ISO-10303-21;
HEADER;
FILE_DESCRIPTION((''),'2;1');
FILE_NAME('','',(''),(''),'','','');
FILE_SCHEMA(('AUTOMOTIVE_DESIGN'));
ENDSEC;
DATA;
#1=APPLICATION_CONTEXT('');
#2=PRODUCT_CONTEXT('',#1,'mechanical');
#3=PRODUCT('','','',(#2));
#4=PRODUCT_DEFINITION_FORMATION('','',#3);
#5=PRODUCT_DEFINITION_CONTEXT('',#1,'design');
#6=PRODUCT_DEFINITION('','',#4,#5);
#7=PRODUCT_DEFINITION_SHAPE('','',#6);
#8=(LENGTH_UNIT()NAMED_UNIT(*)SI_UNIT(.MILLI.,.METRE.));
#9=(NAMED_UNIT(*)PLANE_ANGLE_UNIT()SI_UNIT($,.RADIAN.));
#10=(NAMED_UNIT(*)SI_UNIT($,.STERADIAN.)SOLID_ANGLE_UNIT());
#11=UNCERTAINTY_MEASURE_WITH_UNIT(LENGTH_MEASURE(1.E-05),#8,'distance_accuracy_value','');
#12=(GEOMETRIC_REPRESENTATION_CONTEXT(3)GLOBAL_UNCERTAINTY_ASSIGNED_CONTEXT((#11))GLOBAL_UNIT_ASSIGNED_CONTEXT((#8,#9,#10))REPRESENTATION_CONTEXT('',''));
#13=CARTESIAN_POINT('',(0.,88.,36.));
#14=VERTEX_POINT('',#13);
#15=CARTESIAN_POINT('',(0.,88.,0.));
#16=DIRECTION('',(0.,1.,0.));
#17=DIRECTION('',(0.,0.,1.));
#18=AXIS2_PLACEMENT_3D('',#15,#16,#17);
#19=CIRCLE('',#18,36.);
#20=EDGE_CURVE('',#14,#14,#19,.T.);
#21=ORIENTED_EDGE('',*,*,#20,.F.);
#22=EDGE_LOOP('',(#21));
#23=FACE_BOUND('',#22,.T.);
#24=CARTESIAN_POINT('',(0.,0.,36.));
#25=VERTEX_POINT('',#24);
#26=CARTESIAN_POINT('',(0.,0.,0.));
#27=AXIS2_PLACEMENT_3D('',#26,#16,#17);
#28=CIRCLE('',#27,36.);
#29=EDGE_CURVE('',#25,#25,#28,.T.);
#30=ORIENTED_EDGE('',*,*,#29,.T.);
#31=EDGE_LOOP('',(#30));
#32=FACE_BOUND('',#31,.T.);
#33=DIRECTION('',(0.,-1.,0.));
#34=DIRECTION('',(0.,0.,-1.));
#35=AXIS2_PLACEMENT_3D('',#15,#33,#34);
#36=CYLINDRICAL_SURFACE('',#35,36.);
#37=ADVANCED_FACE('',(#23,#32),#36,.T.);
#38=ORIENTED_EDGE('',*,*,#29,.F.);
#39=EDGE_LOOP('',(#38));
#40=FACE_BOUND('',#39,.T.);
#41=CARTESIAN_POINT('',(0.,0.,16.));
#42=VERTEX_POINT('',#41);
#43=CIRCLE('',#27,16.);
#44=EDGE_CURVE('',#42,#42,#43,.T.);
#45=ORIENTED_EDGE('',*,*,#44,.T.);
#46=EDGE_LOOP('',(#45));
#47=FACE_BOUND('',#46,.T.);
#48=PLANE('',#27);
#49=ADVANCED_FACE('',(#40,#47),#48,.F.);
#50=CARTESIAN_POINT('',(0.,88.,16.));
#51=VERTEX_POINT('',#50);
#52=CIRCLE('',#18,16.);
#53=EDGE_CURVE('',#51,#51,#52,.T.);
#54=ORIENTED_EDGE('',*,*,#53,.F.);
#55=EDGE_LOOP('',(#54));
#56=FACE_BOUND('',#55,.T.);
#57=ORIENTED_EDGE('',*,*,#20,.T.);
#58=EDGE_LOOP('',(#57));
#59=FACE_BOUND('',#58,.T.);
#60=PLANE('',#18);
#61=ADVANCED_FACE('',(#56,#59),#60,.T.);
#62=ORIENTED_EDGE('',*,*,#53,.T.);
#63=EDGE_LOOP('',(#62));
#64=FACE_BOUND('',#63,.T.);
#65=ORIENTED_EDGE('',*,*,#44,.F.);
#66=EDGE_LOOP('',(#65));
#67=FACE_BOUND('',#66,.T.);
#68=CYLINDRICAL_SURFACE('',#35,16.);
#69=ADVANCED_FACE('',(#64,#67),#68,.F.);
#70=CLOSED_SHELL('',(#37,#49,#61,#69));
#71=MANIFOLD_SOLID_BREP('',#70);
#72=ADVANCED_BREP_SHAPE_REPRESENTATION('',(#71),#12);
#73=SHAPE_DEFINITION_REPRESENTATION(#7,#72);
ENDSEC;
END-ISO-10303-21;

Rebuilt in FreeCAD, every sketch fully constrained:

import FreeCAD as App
import Part
import Sketcher

V = App.Vector
Q = App.Units.Quantity

doc = App.newDocument("Part")
params = doc.addObject("Spreadsheet::Sheet", "Params")
for row, (alias, value) in enumerate([
    ("sketch1_diameter", "72 mm"),
    ("sketch1_diameter2", "32 mm"),
    ("pad1_length", "88 mm"),
], start=1):
    params.set(f"A{row}", alias)
    params.set(f"B{row}", "=" + value)
    params.setAlias(f"B{row}", alias)

body = doc.addObject("PartDesign::Body", "Body")

# Sketch on XZ plane
sketch1 = body.newObject("Sketcher::SketchObject", "Sketch")
sketch1.AttachmentSupport = (doc.getObject("XZ_Plane"), [""])
sketch1.MapMode = "FlatFace"
sketch1.addGeometry([
    Part.Circle(V(0, 0, 0), V(0, 0, 1), 36),
    Part.Circle(V(0, 0, 0), V(0, 0, 1), 16),
], False)
sketch1.addConstraint([
    Sketcher.Constraint("Coincident", 0, 3, -1, 1),
    Sketcher.Constraint("Coincident", 1, 3, -1, 1),
    Sketcher.Constraint("Diameter", 0, Q("72 mm")),
    Sketcher.Constraint("Diameter", 1, Q("32 mm")),
])
sketch1.setExpression("Constraints[2]", "Params.sketch1_diameter")
sketch1.setExpression("Constraints[3]", "Params.sketch1_diameter2")
pad1 = body.newObject("PartDesign::Pad", "Pad")
pad1.Profile = sketch1
pad1.setExpression("Length", "Params.pad1_length")
pad1.Reversed = True

doc.recompute()
